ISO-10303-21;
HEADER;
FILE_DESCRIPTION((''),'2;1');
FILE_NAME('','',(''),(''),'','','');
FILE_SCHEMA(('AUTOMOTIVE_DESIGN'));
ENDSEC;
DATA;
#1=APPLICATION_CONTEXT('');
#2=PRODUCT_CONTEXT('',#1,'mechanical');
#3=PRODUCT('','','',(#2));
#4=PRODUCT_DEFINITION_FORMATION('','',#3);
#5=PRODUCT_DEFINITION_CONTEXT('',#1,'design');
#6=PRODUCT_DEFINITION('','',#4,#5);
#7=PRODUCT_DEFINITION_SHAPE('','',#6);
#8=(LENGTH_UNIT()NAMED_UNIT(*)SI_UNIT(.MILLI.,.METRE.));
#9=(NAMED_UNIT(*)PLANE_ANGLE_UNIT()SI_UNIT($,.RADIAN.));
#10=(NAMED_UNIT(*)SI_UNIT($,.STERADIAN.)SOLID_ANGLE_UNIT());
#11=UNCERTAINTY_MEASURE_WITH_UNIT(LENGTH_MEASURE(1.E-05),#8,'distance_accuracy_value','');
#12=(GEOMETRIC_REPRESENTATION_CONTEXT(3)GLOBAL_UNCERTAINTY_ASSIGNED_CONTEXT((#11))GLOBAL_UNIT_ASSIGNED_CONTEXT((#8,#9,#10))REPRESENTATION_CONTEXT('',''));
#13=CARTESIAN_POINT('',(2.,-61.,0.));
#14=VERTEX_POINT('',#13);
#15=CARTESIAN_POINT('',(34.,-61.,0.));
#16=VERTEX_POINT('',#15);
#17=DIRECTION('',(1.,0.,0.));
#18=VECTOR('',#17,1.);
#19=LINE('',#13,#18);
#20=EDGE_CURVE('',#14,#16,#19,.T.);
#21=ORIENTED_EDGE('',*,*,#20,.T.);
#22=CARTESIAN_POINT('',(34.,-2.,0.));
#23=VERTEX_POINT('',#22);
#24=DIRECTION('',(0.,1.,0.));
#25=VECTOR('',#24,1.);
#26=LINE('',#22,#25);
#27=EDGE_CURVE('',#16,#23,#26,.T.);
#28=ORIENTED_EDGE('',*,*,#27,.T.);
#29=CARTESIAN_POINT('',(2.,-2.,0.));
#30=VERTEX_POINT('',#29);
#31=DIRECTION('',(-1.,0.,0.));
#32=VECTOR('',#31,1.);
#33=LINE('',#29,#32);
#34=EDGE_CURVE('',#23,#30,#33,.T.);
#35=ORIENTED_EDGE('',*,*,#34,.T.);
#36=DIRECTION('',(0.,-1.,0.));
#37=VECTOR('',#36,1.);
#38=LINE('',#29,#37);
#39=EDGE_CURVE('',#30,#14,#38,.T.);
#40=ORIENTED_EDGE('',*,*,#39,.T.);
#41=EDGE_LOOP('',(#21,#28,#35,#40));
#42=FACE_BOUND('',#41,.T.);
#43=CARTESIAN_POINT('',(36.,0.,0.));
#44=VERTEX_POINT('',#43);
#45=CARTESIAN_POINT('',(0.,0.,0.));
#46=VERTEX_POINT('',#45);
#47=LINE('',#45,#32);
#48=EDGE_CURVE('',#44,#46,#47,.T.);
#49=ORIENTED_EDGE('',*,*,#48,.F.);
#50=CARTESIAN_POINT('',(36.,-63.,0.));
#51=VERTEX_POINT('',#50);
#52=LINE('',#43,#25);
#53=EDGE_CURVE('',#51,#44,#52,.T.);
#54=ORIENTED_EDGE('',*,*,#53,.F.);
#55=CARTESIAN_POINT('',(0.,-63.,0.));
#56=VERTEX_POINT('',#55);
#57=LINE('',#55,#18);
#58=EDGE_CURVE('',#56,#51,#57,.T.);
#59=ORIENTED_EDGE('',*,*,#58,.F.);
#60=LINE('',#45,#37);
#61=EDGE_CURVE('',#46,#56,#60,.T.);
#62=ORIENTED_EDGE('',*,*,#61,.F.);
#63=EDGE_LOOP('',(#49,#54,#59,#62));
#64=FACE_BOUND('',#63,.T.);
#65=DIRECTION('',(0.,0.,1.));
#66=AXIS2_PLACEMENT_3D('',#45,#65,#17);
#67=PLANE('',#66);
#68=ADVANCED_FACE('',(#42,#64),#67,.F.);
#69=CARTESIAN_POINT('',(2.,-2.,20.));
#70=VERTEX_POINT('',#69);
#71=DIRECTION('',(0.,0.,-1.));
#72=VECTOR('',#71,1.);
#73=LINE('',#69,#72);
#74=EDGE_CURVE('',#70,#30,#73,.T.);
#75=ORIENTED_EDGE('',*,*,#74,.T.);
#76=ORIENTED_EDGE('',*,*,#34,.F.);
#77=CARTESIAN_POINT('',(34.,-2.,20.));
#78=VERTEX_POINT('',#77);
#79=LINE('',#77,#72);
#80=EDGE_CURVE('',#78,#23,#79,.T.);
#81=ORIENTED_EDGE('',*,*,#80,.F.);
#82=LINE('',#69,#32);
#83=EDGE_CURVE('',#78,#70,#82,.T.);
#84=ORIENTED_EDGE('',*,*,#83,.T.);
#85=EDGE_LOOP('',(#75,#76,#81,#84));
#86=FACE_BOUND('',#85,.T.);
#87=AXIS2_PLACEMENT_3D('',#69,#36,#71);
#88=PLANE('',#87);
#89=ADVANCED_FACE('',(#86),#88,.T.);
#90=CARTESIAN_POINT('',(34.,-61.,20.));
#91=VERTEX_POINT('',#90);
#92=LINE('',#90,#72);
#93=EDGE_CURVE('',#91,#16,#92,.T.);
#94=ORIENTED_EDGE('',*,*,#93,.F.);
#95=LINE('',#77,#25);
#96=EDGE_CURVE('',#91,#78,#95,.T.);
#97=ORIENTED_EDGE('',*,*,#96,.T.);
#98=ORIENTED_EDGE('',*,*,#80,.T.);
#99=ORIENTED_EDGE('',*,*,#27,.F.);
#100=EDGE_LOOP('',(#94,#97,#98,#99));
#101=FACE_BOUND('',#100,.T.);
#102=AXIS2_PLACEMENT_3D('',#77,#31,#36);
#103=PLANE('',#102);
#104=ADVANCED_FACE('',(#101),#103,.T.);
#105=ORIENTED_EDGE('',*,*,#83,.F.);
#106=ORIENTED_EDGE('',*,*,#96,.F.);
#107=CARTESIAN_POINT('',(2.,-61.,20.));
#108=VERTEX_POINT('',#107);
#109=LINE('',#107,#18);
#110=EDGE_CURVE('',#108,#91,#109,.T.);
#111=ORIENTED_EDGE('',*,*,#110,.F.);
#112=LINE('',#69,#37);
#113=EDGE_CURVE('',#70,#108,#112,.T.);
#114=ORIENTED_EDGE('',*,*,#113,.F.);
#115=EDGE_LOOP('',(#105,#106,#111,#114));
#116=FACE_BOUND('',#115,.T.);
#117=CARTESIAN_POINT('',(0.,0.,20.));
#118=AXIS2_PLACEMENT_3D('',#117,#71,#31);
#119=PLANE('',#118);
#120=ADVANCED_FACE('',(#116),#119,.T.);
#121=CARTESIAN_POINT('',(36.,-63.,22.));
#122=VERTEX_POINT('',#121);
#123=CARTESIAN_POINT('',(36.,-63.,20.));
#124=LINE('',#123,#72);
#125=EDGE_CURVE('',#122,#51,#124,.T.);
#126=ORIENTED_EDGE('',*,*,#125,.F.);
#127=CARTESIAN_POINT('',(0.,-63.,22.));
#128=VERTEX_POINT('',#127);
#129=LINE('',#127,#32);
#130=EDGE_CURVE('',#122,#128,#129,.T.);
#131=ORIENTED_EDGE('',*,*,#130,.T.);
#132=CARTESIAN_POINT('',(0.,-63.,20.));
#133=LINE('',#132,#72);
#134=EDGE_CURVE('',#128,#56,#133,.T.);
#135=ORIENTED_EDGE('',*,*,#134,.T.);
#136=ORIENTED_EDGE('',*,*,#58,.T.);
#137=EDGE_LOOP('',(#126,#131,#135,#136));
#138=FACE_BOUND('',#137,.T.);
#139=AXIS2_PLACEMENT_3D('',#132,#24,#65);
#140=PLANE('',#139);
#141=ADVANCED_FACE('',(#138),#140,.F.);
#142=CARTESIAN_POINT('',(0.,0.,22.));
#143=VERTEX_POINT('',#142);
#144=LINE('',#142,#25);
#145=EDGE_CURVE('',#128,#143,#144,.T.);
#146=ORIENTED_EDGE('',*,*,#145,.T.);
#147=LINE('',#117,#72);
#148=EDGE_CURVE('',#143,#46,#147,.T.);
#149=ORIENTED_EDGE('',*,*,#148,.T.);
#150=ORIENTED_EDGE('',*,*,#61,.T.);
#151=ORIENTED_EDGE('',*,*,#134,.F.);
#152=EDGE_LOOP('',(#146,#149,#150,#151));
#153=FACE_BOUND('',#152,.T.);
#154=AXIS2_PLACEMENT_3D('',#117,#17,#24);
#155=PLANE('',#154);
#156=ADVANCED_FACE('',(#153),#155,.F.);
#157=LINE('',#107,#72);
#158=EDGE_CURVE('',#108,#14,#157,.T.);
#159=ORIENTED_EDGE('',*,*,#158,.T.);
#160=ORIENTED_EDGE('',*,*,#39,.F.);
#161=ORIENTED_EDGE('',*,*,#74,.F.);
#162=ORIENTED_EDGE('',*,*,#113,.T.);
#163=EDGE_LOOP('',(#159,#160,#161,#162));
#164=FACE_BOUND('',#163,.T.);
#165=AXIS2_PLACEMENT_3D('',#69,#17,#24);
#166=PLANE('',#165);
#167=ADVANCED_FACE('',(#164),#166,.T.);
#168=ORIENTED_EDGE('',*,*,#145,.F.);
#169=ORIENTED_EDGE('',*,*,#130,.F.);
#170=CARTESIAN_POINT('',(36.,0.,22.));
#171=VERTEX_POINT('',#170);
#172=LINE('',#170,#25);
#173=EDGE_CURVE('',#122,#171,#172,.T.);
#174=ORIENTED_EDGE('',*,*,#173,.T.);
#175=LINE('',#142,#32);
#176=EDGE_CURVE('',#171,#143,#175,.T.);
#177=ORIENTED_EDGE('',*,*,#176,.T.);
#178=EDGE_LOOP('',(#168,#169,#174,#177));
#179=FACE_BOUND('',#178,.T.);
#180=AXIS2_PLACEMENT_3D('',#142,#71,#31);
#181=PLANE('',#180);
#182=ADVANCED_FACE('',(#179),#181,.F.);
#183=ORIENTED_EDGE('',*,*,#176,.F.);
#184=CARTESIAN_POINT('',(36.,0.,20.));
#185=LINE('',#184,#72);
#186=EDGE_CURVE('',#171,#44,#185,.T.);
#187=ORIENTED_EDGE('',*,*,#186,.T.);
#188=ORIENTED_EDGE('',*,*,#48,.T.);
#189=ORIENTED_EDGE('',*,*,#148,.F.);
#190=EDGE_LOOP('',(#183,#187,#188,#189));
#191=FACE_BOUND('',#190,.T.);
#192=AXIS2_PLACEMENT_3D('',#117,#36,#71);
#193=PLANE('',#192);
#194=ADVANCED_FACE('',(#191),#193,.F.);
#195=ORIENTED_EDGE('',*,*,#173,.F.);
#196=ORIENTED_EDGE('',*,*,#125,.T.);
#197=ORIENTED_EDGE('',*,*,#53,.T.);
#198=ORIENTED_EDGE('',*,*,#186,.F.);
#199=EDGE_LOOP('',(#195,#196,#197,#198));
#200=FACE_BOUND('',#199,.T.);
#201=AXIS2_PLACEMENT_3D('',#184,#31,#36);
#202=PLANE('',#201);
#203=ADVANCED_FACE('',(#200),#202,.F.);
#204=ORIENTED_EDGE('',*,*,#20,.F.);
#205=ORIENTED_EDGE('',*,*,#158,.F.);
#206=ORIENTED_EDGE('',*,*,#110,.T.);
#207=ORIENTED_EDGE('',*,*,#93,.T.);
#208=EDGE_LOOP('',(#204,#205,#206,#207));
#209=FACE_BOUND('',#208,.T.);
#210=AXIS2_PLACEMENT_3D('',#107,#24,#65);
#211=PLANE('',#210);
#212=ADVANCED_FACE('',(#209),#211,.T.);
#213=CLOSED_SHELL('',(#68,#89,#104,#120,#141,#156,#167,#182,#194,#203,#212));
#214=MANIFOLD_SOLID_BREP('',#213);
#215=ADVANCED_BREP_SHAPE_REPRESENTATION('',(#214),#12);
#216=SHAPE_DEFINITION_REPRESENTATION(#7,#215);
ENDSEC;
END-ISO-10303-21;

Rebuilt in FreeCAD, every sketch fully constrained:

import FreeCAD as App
import Part
import Sketcher

doc = App.newDocument("Part")
body = doc.addObject("PartDesign::Body", "Body")

sketch1 = doc.addObject("Sketcher::SketchObject", "Sketch")
body.addObject(sketch1)
sketch1.AttachmentSupport = (doc.XY_Plane, [""])
sketch1.MapMode = "FlatFace"
sketch1.addGeometry([
    Part.LineSegment(App.Vector(0, 0, 0), App.Vector(0, -63, 0)),
    Part.LineSegment(App.Vector(0, -63, 0), App.Vector(36, -63, 0)),
    Part.LineSegment(App.Vector(36, -63, 0), App.Vector(36, 0, 0)),
    Part.LineSegment(App.Vector(36, 0, 0), App.Vector(0, 0, 0)),
    Part.LineSegment(App.Vector(34, -61, 0), App.Vector(2, -61, 0)),
    Part.LineSegment(App.Vector(2, -61, 0), App.Vector(2, -2, 0)),
    Part.LineSegment(App.Vector(2, -2, 0), App.Vector(34, -2, 0)),
    Part.LineSegment(App.Vector(34, -2, 0), App.Vector(34, -61, 0)),
], False)
sketch1.addConstraint([
    Sketcher.Constraint("Coincident", 0, 2, 1, 1),
    Sketcher.Constraint("Coincident", 1, 2, 2, 1),
    Sketcher.Constraint("Coincident", 2, 2, 3, 1),
    Sketcher.Constraint("Coincident", 3, 2, 0, 1),
    Sketcher.Constraint("Coincident", 4, 2, 5, 1),
    Sketcher.Constraint("Coincident", 5, 2, 6, 1),
    Sketcher.Constraint("Coincident", 6, 2, 7, 1),
    Sketcher.Constraint("Coincident", 7, 2, 4, 1),
    Sketcher.Constraint("Vertical", 0),
    Sketcher.Constraint("Horizontal", 1),
    Sketcher.Constraint("Vertical", 2),
    Sketcher.Constraint("Horizontal", 3),
    Sketcher.Constraint("Horizontal", 4),
    Sketcher.Constraint("Vertical", 5),
    Sketcher.Constraint("Horizontal", 6),
    Sketcher.Constraint("Vertical", 7),
    Sketcher.Constraint("Coincident", 3, 2, -1, 1),
    Sketcher.Constraint("DistanceX", 1, 1, 1, 2, 36.0),
    Sketcher.Constraint("DistanceX", 4, 2, 4, 1, 32.0),
    Sketcher.Constraint("DistanceY", 0, 2, 0, 1, 63.0),
    Sketcher.Constraint("DistanceY", 5, 1, 5, 2, 59.0),
    Sketcher.Constraint("DistanceX", -1, 1, 4, 2, 2.0),
    Sketcher.Constraint("DistanceY", 4, 2, -1, 1, 61.0),
])
pad1 = doc.addObject("PartDesign::Pad", "Pad")
body.addObject(pad1)
pad1.Profile = sketch1
pad1.Length = 20

sketch2 = doc.addObject("Sketcher::SketchObject", "Sketch001")
body.addObject(sketch2)
sketch2.AttachmentSupport = (doc.XY_Plane, [""])
sketch2.MapMode = "FlatFace"
sketch2.AttachmentOffset = App.Placement(App.Vector(0, 0, 20), App.Rotation())
sketch2.addGeometry([
    Part.LineSegment(App.Vector(0, 0, 0), App.Vector(0, -63, 0)),
    Part.LineSegment(App.Vector(0, -63, 0), App.Vector(36, -63, 0)),
    Part.LineSegment(App.Vector(36, -63, 0), App.Vector(36, 0, 0)),
    Part.LineSegment(App.Vector(36, 0, 0), App.Vector(0, 0, 0)),
], False)
sketch2.addConstraint([
    Sketcher.Constraint("Coincident", 0, 2, 1, 1),
    Sketcher.Constraint("Coincident", 1, 2, 2, 1),
    Sketcher.Constraint("Coincident", 2, 2, 3, 1),
    Sketcher.Constraint("Coincident", 3, 2, 0, 1),
    Sketcher.Constraint("Vertical", 0),
    Sketcher.Constraint("Horizontal", 1),
    Sketcher.Constraint("Vertical", 2),
    Sketcher.Constraint("Horizontal", 3),
    Sketcher.Constraint("Coincident", 3, 2, -1, 1),
    Sketcher.Constraint("DistanceX", 1, 1, 1, 2, 36.0),
    Sketcher.Constraint("DistanceY", 0, 2, 0, 1, 63.0),
])
pad2 = doc.addObject("PartDesign::Pad", "Pad001")
body.addObject(pad2)
pad2.Profile = sketch2
pad2.Length = 2

doc.recompute()
